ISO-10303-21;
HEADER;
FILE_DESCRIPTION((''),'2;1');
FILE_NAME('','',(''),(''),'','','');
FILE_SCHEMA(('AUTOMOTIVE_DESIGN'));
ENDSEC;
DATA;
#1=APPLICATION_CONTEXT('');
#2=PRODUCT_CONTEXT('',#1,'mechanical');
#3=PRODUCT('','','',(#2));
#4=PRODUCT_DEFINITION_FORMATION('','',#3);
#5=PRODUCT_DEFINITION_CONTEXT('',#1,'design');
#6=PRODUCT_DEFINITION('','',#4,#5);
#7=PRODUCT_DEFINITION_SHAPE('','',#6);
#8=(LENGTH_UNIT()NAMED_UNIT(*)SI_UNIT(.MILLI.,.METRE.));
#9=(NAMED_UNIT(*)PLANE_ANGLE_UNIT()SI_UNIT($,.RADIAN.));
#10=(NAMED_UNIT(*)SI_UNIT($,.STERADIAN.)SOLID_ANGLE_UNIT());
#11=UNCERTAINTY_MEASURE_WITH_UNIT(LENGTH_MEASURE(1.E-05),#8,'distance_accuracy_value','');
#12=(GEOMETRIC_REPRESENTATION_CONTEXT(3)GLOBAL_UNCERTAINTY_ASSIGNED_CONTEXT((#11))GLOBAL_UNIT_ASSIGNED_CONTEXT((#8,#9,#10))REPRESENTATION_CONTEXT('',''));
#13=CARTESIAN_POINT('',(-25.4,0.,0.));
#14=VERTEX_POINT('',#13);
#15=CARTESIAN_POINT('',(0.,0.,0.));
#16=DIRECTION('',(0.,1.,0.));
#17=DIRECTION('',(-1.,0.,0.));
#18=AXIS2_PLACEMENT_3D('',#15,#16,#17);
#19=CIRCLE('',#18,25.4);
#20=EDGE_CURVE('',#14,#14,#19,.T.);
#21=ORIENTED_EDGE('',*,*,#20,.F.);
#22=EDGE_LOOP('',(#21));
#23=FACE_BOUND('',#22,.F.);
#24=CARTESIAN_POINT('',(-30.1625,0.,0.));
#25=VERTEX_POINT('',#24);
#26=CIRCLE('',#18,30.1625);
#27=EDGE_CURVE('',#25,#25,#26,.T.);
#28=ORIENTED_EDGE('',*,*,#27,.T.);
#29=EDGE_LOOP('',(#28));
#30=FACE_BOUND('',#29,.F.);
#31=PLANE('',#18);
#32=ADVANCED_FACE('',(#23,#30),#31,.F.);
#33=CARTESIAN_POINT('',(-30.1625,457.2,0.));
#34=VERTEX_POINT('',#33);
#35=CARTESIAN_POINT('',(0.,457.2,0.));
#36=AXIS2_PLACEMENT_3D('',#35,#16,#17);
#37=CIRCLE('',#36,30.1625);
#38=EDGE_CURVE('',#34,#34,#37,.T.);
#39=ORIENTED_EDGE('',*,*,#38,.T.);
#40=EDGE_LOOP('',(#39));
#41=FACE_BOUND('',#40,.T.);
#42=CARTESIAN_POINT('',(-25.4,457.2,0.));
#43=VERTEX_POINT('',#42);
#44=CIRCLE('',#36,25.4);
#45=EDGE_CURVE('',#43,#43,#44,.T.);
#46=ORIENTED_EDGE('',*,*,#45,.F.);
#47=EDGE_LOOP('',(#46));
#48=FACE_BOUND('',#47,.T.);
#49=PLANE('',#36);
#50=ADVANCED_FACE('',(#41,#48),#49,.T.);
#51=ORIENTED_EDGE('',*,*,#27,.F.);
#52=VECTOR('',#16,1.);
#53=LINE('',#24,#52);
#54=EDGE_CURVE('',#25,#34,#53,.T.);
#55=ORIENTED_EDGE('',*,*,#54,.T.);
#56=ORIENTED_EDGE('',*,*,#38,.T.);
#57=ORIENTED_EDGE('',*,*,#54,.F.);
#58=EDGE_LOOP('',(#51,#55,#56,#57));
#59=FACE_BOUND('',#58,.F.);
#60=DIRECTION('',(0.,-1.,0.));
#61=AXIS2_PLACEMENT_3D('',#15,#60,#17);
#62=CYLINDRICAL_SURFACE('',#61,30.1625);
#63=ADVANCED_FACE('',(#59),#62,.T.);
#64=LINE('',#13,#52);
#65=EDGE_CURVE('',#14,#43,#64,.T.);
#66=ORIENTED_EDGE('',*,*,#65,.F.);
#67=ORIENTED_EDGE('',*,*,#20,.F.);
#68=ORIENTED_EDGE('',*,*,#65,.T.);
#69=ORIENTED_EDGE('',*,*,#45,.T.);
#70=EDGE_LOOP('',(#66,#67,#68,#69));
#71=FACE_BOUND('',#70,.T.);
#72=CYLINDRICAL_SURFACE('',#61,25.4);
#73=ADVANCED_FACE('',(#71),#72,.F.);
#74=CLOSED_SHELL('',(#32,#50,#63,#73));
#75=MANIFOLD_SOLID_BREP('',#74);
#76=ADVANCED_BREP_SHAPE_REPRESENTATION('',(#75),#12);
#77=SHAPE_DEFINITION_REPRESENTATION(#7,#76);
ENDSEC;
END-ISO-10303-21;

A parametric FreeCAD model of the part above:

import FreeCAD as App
import Part
import Sketcher
Q = App.Units.Quantity

doc = App.newDocument("Part")
body = doc.addObject("PartDesign::Body", "Body")

# Sketch on XZ plane
sketch1 = doc.addObject("Sketcher::SketchObject", "Sketch")
body.addObject(sketch1)
sketch1.AttachmentSupport = (doc.XZ_Plane, [""])
sketch1.MapMode = "FlatFace"
sketch1.addGeometry([
    Part.Circle(App.Vector(0, 0, 0), App.Vector(0, 0, 1), 30),
    Part.Circle(App.Vector(0, 0, 0), App.Vector(0, 0, 1), 25),
], False)
sketch1.addConstraint([
    Sketcher.Constraint("Coincident", 0, 3, -1, 1),
    Sketcher.Constraint("Coincident", 1, 3, -1, 1),
    Sketcher.Constraint("Diameter", 1, Q("2 in")),
    Sketcher.Constraint("Diameter", 0, Q("2.375 in")),
])
pad1 = doc.addObject("PartDesign::Pad", "Pad")
body.addObject(pad1)
pad1.Profile = sketch1
pad1.Length = Q("18 in")
pad1.Reversed = True

doc.recompute()
